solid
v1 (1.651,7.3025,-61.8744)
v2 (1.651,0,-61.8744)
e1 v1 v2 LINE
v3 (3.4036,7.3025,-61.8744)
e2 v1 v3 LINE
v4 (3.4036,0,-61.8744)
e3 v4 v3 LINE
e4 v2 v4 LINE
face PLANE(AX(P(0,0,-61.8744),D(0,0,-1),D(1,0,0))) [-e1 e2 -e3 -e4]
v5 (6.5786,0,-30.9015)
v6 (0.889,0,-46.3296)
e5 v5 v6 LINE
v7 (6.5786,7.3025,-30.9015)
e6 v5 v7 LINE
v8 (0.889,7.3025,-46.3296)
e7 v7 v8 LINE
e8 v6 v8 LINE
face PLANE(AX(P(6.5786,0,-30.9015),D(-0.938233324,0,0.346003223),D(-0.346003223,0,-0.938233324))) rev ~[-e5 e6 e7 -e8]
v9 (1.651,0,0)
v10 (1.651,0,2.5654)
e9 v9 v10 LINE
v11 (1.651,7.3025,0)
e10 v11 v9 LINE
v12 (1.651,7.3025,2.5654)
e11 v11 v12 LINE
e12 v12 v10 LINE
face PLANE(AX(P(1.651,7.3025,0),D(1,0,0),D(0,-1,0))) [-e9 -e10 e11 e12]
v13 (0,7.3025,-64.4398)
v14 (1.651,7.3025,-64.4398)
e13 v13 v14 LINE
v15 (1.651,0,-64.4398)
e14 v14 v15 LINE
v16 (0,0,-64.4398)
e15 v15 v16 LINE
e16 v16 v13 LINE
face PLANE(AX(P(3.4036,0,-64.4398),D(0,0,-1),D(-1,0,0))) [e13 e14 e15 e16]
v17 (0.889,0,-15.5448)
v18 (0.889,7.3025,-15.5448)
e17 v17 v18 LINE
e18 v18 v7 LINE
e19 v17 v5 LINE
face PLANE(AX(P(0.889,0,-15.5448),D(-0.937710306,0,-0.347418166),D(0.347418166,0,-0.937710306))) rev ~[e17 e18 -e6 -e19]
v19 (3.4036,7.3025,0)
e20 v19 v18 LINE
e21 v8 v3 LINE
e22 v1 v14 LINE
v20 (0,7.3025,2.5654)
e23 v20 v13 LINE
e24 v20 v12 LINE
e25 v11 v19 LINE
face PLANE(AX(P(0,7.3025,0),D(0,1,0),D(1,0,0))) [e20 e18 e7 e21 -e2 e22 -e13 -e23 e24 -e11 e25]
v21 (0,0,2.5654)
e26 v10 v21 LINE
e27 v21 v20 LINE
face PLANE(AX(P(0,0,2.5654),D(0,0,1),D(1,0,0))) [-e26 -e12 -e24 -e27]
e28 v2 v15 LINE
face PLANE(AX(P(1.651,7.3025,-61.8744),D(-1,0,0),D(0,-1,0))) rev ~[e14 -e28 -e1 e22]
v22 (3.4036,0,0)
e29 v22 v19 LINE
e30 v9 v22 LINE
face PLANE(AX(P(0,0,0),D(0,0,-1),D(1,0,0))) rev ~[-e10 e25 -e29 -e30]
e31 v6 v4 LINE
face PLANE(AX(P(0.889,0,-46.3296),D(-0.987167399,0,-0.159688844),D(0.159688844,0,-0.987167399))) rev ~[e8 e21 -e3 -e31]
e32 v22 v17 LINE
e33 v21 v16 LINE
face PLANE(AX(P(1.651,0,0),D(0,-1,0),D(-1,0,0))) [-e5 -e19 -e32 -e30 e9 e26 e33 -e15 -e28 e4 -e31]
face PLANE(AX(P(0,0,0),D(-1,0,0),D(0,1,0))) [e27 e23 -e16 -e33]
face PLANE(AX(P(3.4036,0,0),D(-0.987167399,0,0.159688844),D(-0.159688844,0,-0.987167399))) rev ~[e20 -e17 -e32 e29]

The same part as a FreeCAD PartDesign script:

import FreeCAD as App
import Part
import Sketcher
from FreeCAD import Vector
Q = App.Units.Quantity

doc = App.newDocument("Part")
body = doc.addObject("PartDesign::Body", "Body")

# Sketch on XZ plane
sketch1 = body.newObject("Sketcher::SketchObject", "Sketch")
sketch1.AttachmentSupport = (doc.getObject("XZ_Plane"), [""])
sketch1.MapMode = "FlatFace"
sketch1.addGeometry([
    Part.LineSegment(Vector(0, -61.8744, 0), Vector(0, 0, 0)),  # 0
    Part.LineSegment(Vector(0, 0, 0), Vector(3.4036, 0, 0)),  # 1
    Part.LineSegment(Vector(3.4036, 0, 0), Vector(0.889, -15.5448, 0)),  # 2
    Part.LineSegment(Vector(0.889, -15.5448, 0), Vector(6.5786, -30.9015, 0)),  # 3
    Part.LineSegment(Vector(6.5786, -30.9015, 0), Vector(0.889, -46.3296, 0)),  # 4
    Part.LineSegment(Vector(0.889, -46.3296, 0), Vector(3.4036, -61.8744, 0)),  # 5
    Part.LineSegment(Vector(3.4036, -61.8744, 0), Vector(0, -61.8744, 0)),  # 6
], False)
sketch1.addConstraint([
    Sketcher.Constraint("Coincident", 0, 2, 1, 1),
    Sketcher.Constraint("Coincident", 1, 2, 2, 1),
    Sketcher.Constraint("Coincident", 2, 2, 3, 1),
    Sketcher.Constraint("Coincident", 3, 2, 4, 1),
    Sketcher.Constraint("Coincident", 4, 2, 5, 1),
    Sketcher.Constraint("Coincident", 5, 2, 6, 1),
    Sketcher.Constraint("Coincident", 6, 2, 0, 1),
    Sketcher.Constraint("Vertical", 0),
    Sketcher.Constraint("Horizontal", 1),
    Sketcher.Constraint("Horizontal", 6),
    Sketcher.Constraint("Coincident", 0, 2, -1, 1),
    Sketcher.Constraint("Vertical", 2, 2, 4, 2),
    Sketcher.Constraint("Vertical", 1, 2, 5, 2),
    Sketcher.Constraint("Equal", 2, 5),
    Sketcher.Constraint("DistanceX", 1, 1, 1, 2, Q("0.134 in")),
    Sketcher.Constraint("DistanceY", 0, 1, 0, 2, Q("2.436 in")),
    Sketcher.Constraint("DistanceX", -1, 1, 2, 2, Q("0.035 in")),
    Sketcher.Constraint("DistanceY", 2, 2, -1, 1, Q("0.612 in")),
    Sketcher.Constraint("DistanceX", -1, 1, 3, 2, Q("0.259 in")),
    Sketcher.Constraint("Angle", 3, Q("-69.6705 deg")),
])
pad1 = body.newObject("PartDesign::Pad", "Pad")
pad1.Profile = sketch1
pad1.Length = Q("0.2875 in")
pad1.Reversed = True

# Sketch on XY plane
sketch2 = body.newObject("Sketcher::SketchObject", "Sketch001")
sketch2.AttachmentSupport = (doc.getObject("XY_Plane"), [""])
sketch2.MapMode = "FlatFace"
sketch2.AttachmentOffset = App.Placement(Vector(0, 0, -2.436 * 25.4), App.Rotation())
sketch2.addGeometry([
    Part.LineSegment(Vector(0, 0, 0), Vector(0, 7.3025, 0)),
    Part.LineSegment(Vector(0, 7.3025, 0), Vector(1.651, 7.3025, 0)),
    Part.LineSegment(Vector(1.651, 7.3025, 0), Vector(1.651, 0, 0)),
    Part.LineSegment(Vector(1.651, 0, 0), Vector(0, 0, 0)),
], False)
sketch2.addConstraint([
    Sketcher.Constraint("Coincident", 0, 2, 1, 1),
    Sketcher.Constraint("Coincident", 1, 2, 2, 1),
    Sketcher.Constraint("Coincident", 2, 2, 3, 1),
    Sketcher.Constraint("Coincident", 3, 2, 0, 1),
    Sketcher.Constraint("Vertical", 0),
    Sketcher.Constraint("Horizontal", 1),
    Sketcher.Constraint("Vertical", 2),
    Sketcher.Constraint("Horizontal", 3),
    Sketcher.Constraint("Coincident", 3, 2, -1, 1),
    Sketcher.Constraint("DistanceX", 1, 1, 1, 2, Q("0.065 in")),
    Sketcher.Constraint("DistanceY", 0, 1, 0, 2, Q("0.2875 in")),
])
pad2 = body.newObject("PartDesign::Pad", "Pad001")
pad2.Profile = sketch2
pad2.Length = Q("0.101 in")
pad2.Reversed = True

# Sketch on XY plane
sketch3 = body.newObject("Sketcher::SketchObject", "Sketch002")
sketch3.AttachmentSupport = (doc.getObject("XY_Plane"), [""])
sketch3.MapMode = "FlatFace"
sketch3.addGeometry([
    Part.LineSegment(Vector(0, 0, 0), Vector(1.651, 0, 0)),
    Part.LineSegment(Vector(1.651, 0, 0), Vector(1.651, 7.3025, 0)),
    Part.LineSegment(Vector(1.651, 7.3025, 0), Vector(0, 7.3025, 0)),
    Part.LineSegment(Vector(0, 7.3025, 0), Vector(0, 0, 0)),
], False)
sketch3.addConstraint([
    Sketcher.Constraint("Coincident", 0, 2, 1, 1),
    Sketcher.Constraint("Coincident", 1, 2, 2, 1),
    Sketcher.Constraint("Coincident", 2, 2, 3, 1),
    Sketcher.Constraint("Coincident", 3, 2, 0, 1),
    Sketcher.Constraint("Horizontal", 0),
    Sketcher.Constraint("Vertical", 1),
    Sketcher.Constraint("Horizontal", 2),
    Sketcher.Constraint("Vertical", 3),
    Sketcher.Constraint("Coincident", 3, 2, -1, 1),
    Sketcher.Constraint("DistanceX", 0, 1, 0, 2, Q("0.065 in")),
    Sketcher.Constraint("DistanceY", 1, 1, 1, 2, Q("0.2875 in")),
])
pad3 = body.newObject("PartDesign::Pad", "Pad002")
pad3.Profile = sketch3
pad3.Length = Q("0.101 in")

doc.recompute()
